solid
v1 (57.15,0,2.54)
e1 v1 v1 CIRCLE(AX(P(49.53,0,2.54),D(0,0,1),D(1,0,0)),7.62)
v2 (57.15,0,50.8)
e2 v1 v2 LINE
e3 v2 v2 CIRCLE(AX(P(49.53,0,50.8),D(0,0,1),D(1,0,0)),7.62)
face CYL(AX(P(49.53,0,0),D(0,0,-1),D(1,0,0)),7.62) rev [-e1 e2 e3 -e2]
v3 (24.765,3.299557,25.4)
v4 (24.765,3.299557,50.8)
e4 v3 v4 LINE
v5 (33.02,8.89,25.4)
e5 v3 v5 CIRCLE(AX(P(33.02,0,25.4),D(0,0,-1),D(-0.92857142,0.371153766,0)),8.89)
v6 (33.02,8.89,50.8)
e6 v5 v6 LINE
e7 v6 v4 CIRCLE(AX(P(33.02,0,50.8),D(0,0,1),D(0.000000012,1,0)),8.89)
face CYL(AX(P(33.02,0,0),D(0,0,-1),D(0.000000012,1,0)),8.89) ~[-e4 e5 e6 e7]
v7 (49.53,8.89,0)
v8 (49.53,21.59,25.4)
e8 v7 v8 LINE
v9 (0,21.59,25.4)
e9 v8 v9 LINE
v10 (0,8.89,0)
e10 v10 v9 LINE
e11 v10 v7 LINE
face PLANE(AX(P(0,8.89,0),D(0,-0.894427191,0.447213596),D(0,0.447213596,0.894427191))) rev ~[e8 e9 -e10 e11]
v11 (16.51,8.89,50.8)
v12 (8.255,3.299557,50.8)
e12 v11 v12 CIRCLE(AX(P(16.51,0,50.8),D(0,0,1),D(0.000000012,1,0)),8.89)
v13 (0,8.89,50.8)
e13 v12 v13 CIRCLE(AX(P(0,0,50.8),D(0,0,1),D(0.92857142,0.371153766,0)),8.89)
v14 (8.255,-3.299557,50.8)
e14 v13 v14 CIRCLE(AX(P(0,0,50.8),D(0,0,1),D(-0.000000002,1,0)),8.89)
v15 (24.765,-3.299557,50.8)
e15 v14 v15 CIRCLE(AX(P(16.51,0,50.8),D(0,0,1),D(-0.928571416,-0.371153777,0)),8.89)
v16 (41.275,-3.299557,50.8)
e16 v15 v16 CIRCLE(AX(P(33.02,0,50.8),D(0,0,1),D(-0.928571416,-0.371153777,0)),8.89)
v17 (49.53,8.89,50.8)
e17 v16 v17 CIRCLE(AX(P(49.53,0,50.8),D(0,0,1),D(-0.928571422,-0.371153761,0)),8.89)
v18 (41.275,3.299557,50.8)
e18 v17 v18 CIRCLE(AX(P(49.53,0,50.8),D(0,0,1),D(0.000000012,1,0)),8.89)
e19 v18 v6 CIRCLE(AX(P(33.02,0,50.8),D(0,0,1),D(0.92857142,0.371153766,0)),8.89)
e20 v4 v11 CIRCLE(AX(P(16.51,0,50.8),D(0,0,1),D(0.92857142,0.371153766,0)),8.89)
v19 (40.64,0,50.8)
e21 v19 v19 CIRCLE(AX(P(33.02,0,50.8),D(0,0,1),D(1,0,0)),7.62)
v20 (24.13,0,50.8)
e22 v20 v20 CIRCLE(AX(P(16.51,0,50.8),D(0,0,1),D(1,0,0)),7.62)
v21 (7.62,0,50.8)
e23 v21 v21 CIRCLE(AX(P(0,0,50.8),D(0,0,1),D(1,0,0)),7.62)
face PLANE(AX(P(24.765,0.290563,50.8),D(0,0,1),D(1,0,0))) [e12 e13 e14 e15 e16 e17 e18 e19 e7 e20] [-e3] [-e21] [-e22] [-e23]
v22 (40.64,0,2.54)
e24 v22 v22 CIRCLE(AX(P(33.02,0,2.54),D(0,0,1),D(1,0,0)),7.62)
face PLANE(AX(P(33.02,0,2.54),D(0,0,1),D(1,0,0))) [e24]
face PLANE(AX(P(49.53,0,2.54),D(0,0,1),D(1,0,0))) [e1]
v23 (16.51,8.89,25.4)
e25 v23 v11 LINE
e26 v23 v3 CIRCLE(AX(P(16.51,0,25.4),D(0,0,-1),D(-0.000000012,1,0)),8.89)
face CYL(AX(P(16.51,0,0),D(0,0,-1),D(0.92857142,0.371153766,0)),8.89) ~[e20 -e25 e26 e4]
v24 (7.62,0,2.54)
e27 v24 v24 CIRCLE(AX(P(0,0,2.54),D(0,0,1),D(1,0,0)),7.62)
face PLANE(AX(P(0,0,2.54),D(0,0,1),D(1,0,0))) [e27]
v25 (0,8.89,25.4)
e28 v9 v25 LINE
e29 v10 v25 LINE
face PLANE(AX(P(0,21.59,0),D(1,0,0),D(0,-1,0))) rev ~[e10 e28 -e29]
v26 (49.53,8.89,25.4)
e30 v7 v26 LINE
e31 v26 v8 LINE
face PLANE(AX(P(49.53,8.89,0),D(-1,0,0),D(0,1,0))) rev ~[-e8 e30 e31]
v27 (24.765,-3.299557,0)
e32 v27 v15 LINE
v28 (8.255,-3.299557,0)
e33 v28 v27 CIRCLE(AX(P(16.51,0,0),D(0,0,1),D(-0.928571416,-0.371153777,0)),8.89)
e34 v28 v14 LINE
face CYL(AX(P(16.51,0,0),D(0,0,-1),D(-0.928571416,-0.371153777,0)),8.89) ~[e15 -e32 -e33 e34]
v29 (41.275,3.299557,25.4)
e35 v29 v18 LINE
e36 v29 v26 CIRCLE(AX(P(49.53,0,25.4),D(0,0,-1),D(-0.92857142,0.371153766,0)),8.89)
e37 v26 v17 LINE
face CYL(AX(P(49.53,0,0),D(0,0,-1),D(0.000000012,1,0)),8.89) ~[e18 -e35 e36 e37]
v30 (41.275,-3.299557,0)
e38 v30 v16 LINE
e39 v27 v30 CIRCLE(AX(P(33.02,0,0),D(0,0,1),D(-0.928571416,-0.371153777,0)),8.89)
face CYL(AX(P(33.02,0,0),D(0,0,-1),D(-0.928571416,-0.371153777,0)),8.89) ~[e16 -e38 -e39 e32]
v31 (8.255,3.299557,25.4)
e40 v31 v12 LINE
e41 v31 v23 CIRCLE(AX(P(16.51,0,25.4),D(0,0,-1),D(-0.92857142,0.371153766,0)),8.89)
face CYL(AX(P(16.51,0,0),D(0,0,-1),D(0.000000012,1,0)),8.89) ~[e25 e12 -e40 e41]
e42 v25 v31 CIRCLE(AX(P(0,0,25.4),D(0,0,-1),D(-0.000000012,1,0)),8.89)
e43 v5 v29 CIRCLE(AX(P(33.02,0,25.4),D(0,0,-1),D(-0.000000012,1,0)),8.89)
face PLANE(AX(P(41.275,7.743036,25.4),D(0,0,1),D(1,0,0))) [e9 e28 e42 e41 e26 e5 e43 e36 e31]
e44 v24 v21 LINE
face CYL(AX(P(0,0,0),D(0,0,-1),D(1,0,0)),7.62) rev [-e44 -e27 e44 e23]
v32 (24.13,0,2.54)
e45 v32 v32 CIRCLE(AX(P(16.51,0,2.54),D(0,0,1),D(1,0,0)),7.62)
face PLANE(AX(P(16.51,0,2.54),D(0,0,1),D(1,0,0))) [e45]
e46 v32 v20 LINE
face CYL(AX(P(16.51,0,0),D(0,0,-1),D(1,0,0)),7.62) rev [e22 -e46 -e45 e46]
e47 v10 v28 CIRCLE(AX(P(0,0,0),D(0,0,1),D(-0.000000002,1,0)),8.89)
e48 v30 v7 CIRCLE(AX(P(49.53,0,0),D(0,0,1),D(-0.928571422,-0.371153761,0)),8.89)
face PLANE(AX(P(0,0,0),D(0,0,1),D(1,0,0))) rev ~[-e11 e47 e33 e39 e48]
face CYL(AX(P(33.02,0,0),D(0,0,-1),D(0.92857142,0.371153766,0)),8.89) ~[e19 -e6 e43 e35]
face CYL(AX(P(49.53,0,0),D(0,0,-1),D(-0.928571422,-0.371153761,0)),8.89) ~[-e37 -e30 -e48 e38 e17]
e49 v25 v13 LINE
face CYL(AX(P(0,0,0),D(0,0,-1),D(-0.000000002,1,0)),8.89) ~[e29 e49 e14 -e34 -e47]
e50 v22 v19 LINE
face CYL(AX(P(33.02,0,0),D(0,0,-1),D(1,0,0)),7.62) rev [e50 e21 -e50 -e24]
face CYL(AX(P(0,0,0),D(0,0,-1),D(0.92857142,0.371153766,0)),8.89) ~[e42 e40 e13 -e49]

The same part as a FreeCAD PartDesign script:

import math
import FreeCAD as App
import Part
import Sketcher

V = App.Vector
Q = App.Units.Quantity

doc = App.newDocument("Part")
body = doc.addObject("PartDesign::Body", "Body")

# Sketch on XY plane
sketch1 = body.newObject("Sketcher::SketchObject", "Sketch")
sketch1.AttachmentSupport = (doc.getObject("XY_Plane"), [""])
sketch1.MapMode = "FlatFace"
sketch1.addGeometry([
    Part.ArcOfCircle(Part.Circle(V(17, 0, 0), V(0, 0, 1), 9), math.radians(90), math.radians(158)),  # 0
    Part.ArcOfCircle(Part.Circle(V(0, 0, 0), V(0, 0, 1), 9), math.radians(22), math.radians(90)),  # 1
    Part.ArcOfCircle(Part.Circle(V(0, 0, 0), V(0, 0, 1), 9), math.radians(90), math.radians(338)),  # 2
    Part.ArcOfCircle(Part.Circle(V(17, 0, 0), V(0, 0, 1), 9), math.radians(-158), math.radians(-22)),  # 3
    Part.ArcOfCircle(Part.Circle(V(33, 0, 0), V(0, 0, 1), 9), math.radians(-158), math.radians(-22)),  # 4
    Part.ArcOfCircle(Part.Circle(V(50, 0, 0), V(0, 0, 1), 9), math.radians(-158), math.radians(90)),  # 5
    Part.ArcOfCircle(Part.Circle(V(50, 0, 0), V(0, 0, 1), 9), math.radians(90), math.radians(158)),  # 6
    Part.ArcOfCircle(Part.Circle(V(33, 0, 0), V(0, 0, 1), 9), math.radians(22), math.radians(90)),  # 7
    Part.ArcOfCircle(Part.Circle(V(33, 0, 0), V(0, 0, 1), 9), math.radians(90), math.radians(158)),  # 8
    Part.ArcOfCircle(Part.Circle(V(17, 0, 0), V(0, 0, 1), 9), math.radians(22), math.radians(90)),  # 9
    Part.Circle(V(0, 0, 0), V(0, 0, 1), 8),  # 10
    Part.Circle(V(17, 0, 0), V(0, 0, 1), 8),  # 11
    Part.Circle(V(33, 0, 0), V(0, 0, 1), 8),  # 12
    Part.Circle(V(50, 0, 0), V(0, 0, 1), 8),  # 13
], False)
sketch1.addConstraint([
    Sketcher.Constraint("Coincident", 0, 2, 1, 1),
    Sketcher.Constraint("Tangent", 1, 2, 2, 1),
    Sketcher.Constraint("Coincident", 2, 2, 3, 1),
    Sketcher.Constraint("Coincident", 3, 2, 4, 1),
    Sketcher.Constraint("Coincident", 4, 2, 5, 1),
    Sketcher.Constraint("Tangent", 5, 2, 6, 1),
    Sketcher.Constraint("Coincident", 6, 2, 7, 1),
    Sketcher.Constraint("Tangent", 7, 2, 8, 1),
    Sketcher.Constraint("Coincident", 8, 2, 9, 1),
    Sketcher.Constraint("Tangent", 9, 2, 0, 1),
    Sketcher.Constraint("Coincident", 1, 3, -1, 1),
    Sketcher.Constraint("Coincident", 10, 3, -1, 1),
    Sketcher.Constraint("Coincident", 3, 3, 0, 3),
    Sketcher.Constraint("Coincident", 7, 3, 4, 3),
    Sketcher.Constraint("Coincident", 11, 3, 0, 3),
    Sketcher.Constraint("Coincident", 12, 3, 4, 3),
    Sketcher.Constraint("Coincident", 13, 3, 5, 3),
    Sketcher.Constraint("Equal", 0, 1),
    Sketcher.Constraint("Equal", 1, 2),
    Sketcher.Constraint("Equal", 2, 3),
    Sketcher.Constraint("Equal", 3, 4),
    Sketcher.Constraint("Equal", 4, 5),
    Sketcher.Constraint("Equal", 5, 6),
    Sketcher.Constraint("Equal", 6, 7),
    Sketcher.Constraint("Equal", 7, 8),
    Sketcher.Constraint("Equal", 8, 9),
    Sketcher.Constraint("Equal", 10, 11),
    Sketcher.Constraint("Equal", 11, 12),
    Sketcher.Constraint("Equal", 12, 13),
    Sketcher.Constraint("Symmetric", 4, 2, 6, 2, -1),
    Sketcher.Constraint("PointOnObject", 0, 3, -1),
    Sketcher.Constraint("PointOnObject", 1, 2, -2),
    Sketcher.Constraint("Horizontal", 2, 2, 3, 2),
    Sketcher.Constraint("Horizontal", 3, 2, 4, 2),
    Sketcher.Constraint("Vertical", 13, 3, 5, 2),
    Sketcher.Constraint("Vertical", 12, 3, 7, 2),
    Sketcher.Constraint("Vertical", 11, 3, 9, 2),
    Sketcher.Constraint("Diameter", 10, Q("0.6 in")),
    Sketcher.Constraint("Radius", 0, Q("0.35 in")),
    Sketcher.Constraint("DistanceX", -1, 1, 4, 3, Q("1.3 in")),
])
pad1 = body.newObject("PartDesign::Pad", "Pad")
pad1.Profile = sketch1
pad1.Length = Q("2 in")

# Sketch on XY plane
sketch2 = body.newObject("Sketcher::SketchObject", "Sketch001")
sketch2.AttachmentSupport = (doc.getObject("XY_Plane"), [""])
sketch2.MapMode = "FlatFace"
sketch2.addGeometry([
    Part.ArcOfCircle(Part.Circle(V(33, 0, 0), V(0, 0, 1), 9), math.radians(22), math.radians(90)),  # 0
    Part.ArcOfCircle(Part.Circle(V(50, 0, 0), V(0, 0, 1), 9), math.radians(90), math.radians(158)),  # 1
    Part.LineSegment(V(50, 9, 0), V(50, 22, 0)),  # 2
    Part.LineSegment(V(50, 22, 0), V(0, 22, 0)),  # 3
    Part.LineSegment(V(0, 22, 0), V(0, 9, 0)),  # 4
    Part.ArcOfCircle(Part.Circle(V(0, 0, 0), V(0, 0, 1), 9), math.radians(22), math.radians(90)),  # 5
    Part.ArcOfCircle(Part.Circle(V(17, 0, 0), V(0, 0, 1), 9), math.radians(90), math.radians(158)),  # 6
    Part.ArcOfCircle(Part.Circle(V(17, 0, 0), V(0, 0, 1), 9), math.radians(22), math.radians(90)),  # 7
    Part.ArcOfCircle(Part.Circle(V(33, 0, 0), V(0, 0, 1), 9), math.radians(90), math.radians(158)),  # 8
], False)
sketch2.addConstraint([
    Sketcher.Constraint("Coincident", 0, 1, 1, 2),
    Sketcher.Constraint("Coincident", 1, 1, 2, 1),
    Sketcher.Constraint("Coincident", 2, 2, 3, 1),
    Sketcher.Constraint("Coincident", 3, 2, 4, 1),
    Sketcher.Constraint("Coincident", 4, 2, 5, 2),
    Sketcher.Constraint("Coincident", 5, 1, 6, 2),
    Sketcher.Constraint("Tangent", 6, 1, 7, 2),
    Sketcher.Constraint("Coincident", 7, 1, 8, 2),
    Sketcher.Constraint("Tangent", 8, 1, 0, 2),
    Sketcher.Constraint("Vertical", 2),
    Sketcher.Constraint("Horizontal", 3),
    Sketcher.Constraint("Vertical", 4),
    Sketcher.Constraint("Coincident", 5, 3, -1, 1),
    Sketcher.Constraint("Equal", 0, 1),
    Sketcher.Constraint("Equal", 1, 5),
    Sketcher.Constraint("Equal", 5, 6),
    Sketcher.Constraint("Equal", 6, 7),
    Sketcher.Constraint("Equal", 7, 8),
    Sketcher.Constraint("PointOnObject", 0, 3, -1),
    Sketcher.Constraint("PointOnObject", 1, 3, -1),
    Sketcher.Constraint("PointOnObject", 6, 3, -1),
    Sketcher.Constraint("PointOnObject", 3, 2, -2),
    Sketcher.Constraint("Horizontal", 0, 1, 5, 1),
    Sketcher.Constraint("Horizontal", 5, 1, 7, 1),
    Sketcher.Constraint("Vertical", 7, 3, 6, 1),
    Sketcher.Constraint("Vertical", 0, 3, 8, 1),
    Sketcher.Constraint("Radius", 0, Q("0.35 in")),
    Sketcher.Constraint("DistanceY", 2, 1, 2, 2, Q("0.5 in")),
    Sketcher.Constraint("DistanceX", 3, 2, 3, 1, Q("1.95 in")),
    Sketcher.Constraint("DistanceX", -1, 1, 0, 3, Q("1.3 in")),
])
pad2 = body.newObject("PartDesign::Pad", "Pad001")
pad2.Profile = sketch2
pad2.Length = Q("1 in")

# Sketch on YZ plane
sketch3 = body.newObject("Sketcher::SketchObject", "Sketch002")
sketch3.AttachmentSupport = (doc.getObject("YZ_Plane"), [""])
sketch3.MapMode = "FlatFace"
sketch3.addGeometry([
    Part.LineSegment(V(9, 0, 0), V(22, 25, 0)),
    Part.LineSegment(V(22, 25, 0), V(22, 0, 0)),
    Part.LineSegment(V(22, 0, 0), V(9, 0, 0)),
], False)
sketch3.addConstraint([
    Sketcher.Constraint("Coincident", 0, 2, 1, 1),
    Sketcher.Constraint("Coincident", 1, 2, 2, 1),
    Sketcher.Constraint("Coincident", 2, 2, 0, 1),
    Sketcher.Constraint("Vertical", 1),
    Sketcher.Constraint("Horizontal", 2),
    Sketcher.Constraint("PointOnObject", 1, 2, -1),
    Sketcher.Constraint("DistanceY", 1, 2, 1, 1, Q("1 in")),
    Sketcher.Constraint("DistanceX", 2, 2, 2, 1, Q("0.5 in")),
    Sketcher.Constraint("DistanceX", -1, 1, 0, 2, Q("0.85 in")),
])
pocket1 = body.newObject("PartDesign::Pocket", "Pocket")
pocket1.Profile = sketch3
pocket1.Length = Q("2.42 in")
pocket1.Reversed = True

# Sketch on XY plane
sketch4 = body.newObject("Sketcher::SketchObject", "Sketch003")
sketch4.AttachmentSupport = (doc.getObject("XY_Plane"), [""])
sketch4.MapMode = "FlatFace"
sketch4.addGeometry([
    Part.Circle(V(0, 0, 0), V(0, 0, 1), 8),
    Part.Circle(V(17, 0, 0), V(0, 0, 1), 8),
    Part.Circle(V(33, 0, 0), V(0, 0, 1), 8),
    Part.Circle(V(50, 0, 0), V(0, 0, 1), 8),
], False)
sketch4.addConstraint([
    Sketcher.Constraint("Coincident", 0, 3, -1, 1),
    Sketcher.Constraint("Equal", 0, 1),
    Sketcher.Constraint("Equal", 1, 2),
    Sketcher.Constraint("Equal", 2, 3),
    Sketcher.Constraint("PointOnObject", 1, 3, -1),
    Sketcher.Constraint("PointOnObject", 2, 3, -1),
    Sketcher.Constraint("PointOnObject", 3, 3, -1),
    Sketcher.Constraint("Diameter", 0, Q("0.6 in")),
    Sketcher.Constraint("DistanceX", -1, 1, 2, 3, Q("1.3 in")),
    Sketcher.Constraint("DistanceX", 1, 3, 3, 3, Q("1.3 in")),
    Sketcher.Constraint("DistanceX", -1, 1, 1, 3, Q("0.65 in")),
])
pad3 = body.newObject("PartDesign::Pad", "Pad002")
pad3.Profile = sketch4
pad3.Length = Q("0.1 in")

doc.recompute()
